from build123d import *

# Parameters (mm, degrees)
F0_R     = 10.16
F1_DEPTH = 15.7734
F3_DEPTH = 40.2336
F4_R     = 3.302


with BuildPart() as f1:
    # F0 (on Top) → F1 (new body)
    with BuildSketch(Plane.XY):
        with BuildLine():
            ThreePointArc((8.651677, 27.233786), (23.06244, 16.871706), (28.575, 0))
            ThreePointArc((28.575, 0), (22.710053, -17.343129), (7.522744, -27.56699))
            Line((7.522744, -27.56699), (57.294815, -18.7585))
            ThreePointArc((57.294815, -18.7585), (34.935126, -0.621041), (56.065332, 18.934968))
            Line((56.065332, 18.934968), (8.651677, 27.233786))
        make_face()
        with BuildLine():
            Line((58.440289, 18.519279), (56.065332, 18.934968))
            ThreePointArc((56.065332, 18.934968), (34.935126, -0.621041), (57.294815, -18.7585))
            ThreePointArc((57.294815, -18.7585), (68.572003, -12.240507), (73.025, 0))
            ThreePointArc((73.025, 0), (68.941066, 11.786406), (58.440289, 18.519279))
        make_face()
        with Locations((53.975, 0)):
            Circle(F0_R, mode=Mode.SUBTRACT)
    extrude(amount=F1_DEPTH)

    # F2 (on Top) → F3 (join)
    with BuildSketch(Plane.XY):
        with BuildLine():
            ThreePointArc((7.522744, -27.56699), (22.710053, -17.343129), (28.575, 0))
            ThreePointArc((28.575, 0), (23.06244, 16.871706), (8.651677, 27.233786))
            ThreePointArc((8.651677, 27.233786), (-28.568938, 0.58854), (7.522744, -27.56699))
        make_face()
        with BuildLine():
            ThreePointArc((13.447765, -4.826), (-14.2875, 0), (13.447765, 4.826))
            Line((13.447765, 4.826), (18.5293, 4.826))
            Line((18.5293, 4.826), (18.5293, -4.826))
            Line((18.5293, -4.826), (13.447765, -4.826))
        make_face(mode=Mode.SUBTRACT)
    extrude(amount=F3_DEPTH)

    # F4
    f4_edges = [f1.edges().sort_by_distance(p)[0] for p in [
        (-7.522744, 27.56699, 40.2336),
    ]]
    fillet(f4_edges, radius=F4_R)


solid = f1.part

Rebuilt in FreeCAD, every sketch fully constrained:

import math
import FreeCAD as App
import Part
import Sketcher
from FreeCAD import Vector
Q = App.Units.Quantity


def edges_at(feature, points):
    """Names of the edges that pass closest to the given points."""
    edges = feature.Shape.Edges
    near = lambda p: min(range(len(edges)), key=lambda i: edges[i].distToShape(Part.Vertex(*p))[0])
    return sorted({f"Edge{near(p) + 1}" for p in points})

doc = App.newDocument("Part")
params = doc.addObject("Spreadsheet::Sheet", "Params")
for row, (alias, value) in enumerate([
    ("sketch1_diameter", "0.8 in"),
    ("sketch1_radius", "0.75 in"),
    ("sketch1_radius2", "1.125 in"),
    ("pad1_length", "0.621 in"),
    ("sketch2_radius", "1.125 in"),
    ("sketch2_radius2", "0.5625 in"),
    ("sketch2_height", "0.38 in"),
    ("pad2_length", "1.584 in"),
    ("fillet_radius", "0.13 in"),
], start=1):
    params.set(f"A{row}", alias)
    params.set(f"B{row}", "=" + value)
    params.setAlias(f"B{row}", alias)

body = doc.addObject("PartDesign::Body", "Body")

# Sketch on XY plane
sketch1 = body.newObject("Sketcher::SketchObject", "Sketch")
sketch1.AttachmentSupport = (doc.getObject("XY_Plane"), [""])
sketch1.MapMode = "FlatFace"
sketch1.addGeometry([
    Part.ArcOfCircle(Part.Circle(Vector(-0.000001, -0.000001, 0), Vector(0, 0, 1), 28.575001), math.radians(0.000002), math.radians(72.375895)),  # 0
    Part.ArcOfCircle(Part.Circle(Vector(0.000001, 0, 0), Vector(0, 0, 1), 28.574999), math.radians(-74.736228), math.radians(0.000001)),  # 1
    Part.LineSegment(Vector(7.522744, -27.56699, 0), Vector(57.294815, -18.7585, 0)),  # 2
    Part.ArcOfCircle(Part.Circle(Vector(53.975001, -0.000001, 0), Vector(0, 0, 1), 19.049999), math.radians(-79.96391), math.radians(0.000002)),  # 3
    Part.ArcOfCircle(Part.Circle(Vector(53.975, 0, 0), Vector(0, 0, 1), 19.05), math.radians(0.000001), math.radians(76.443838)),  # 4
    Part.LineSegment(Vector(58.440289, 18.519279, 0), Vector(56.065332, 18.934968, 0)),  # 5
    Part.LineSegment(Vector(56.065332, 18.934968, 0), Vector(8.651677, 27.233786, 0)),  # 6
    Part.Circle(Vector(53.975, 0, 0), Vector(0, 0, 1), 10.16),  # 7
], False)
sketch1.addConstraint([
    Sketcher.Constraint("Coincident", 0, 1, 1, 2),
    Sketcher.Constraint("Coincident", 1, 1, 2, 1),
    Sketcher.Constraint("Coincident", 2, 2, 3, 1),
    Sketcher.Constraint("Coincident", 3, 2, 4, 1),
    Sketcher.Constraint("Coincident", 4, 2, 5, 1),
    Sketcher.Constraint("Coincident", 5, 2, 6, 1),
    Sketcher.Constraint("Coincident", 6, 2, 0, 2),
    Sketcher.Constraint("Coincident", 0, 3, -1, 1),
    Sketcher.Constraint("Coincident", 1, 3, -1, 1),
    Sketcher.Constraint("Coincident", 4, 3, 3, 3),
    Sketcher.Constraint("Coincident", 7, 3, 3, 3),
    Sketcher.Constraint("PointOnObject", 3, 3, -1),
    Sketcher.Constraint("PointOnObject", 0, 1, -1),
    Sketcher.Constraint("PointOnObject", 3, 2, -1),
    Sketcher.Constraint("Diameter", 7, Q("0.8 in")),
    Sketcher.Constraint("Radius", 3, Q("0.75 in")),
    Sketcher.Constraint("Radius", 0, Q("1.125 in")),
    Sketcher.Constraint("DistanceX", 0, 1, 4, 3, Q("1 in")),
    Sketcher.Constraint("DistanceY", 2, 2, -1, 1, 18.7585),
    Sketcher.Constraint("Distance", 2, 50.54551),
    Sketcher.Constraint("Distance", 5, 2.411062),
    Sketcher.Constraint("DistanceX", -1, 1, 4, 2, 58.440289),
    Sketcher.Constraint("DistanceX", -1, 1, 5, 2, 56.065332),
    Sketcher.Constraint("DistanceX", 0, 3, 6, 2, 8.651678),
])
sketch1.setExpression("Constraints[14]", "Params.sketch1_diameter")
sketch1.setExpression("Constraints[15]", "Params.sketch1_radius")
sketch1.setExpression("Constraints[16]", "Params.sketch1_radius2")
pad1 = body.newObject("PartDesign::Pad", "Pad")
pad1.Profile = sketch1
pad1.setExpression("Length", "Params.pad1_length")

# Sketch on XY plane
sketch2 = body.newObject("Sketcher::SketchObject", "Sketch001")
sketch2.AttachmentSupport = (doc.getObject("XY_Plane"), [""])
sketch2.MapMode = "FlatFace"
sketch2.addGeometry([
    Part.ArcOfCircle(Part.Circle(Vector(0.000001, 0, 0), Vector(0, 0, 1), 28.574999), math.radians(-74.736228), math.radians(0.000001)),  # 0
    Part.ArcOfCircle(Part.Circle(Vector(-0.000001, -0.000001, 0), Vector(0, 0, 1), 28.575001), math.radians(0.000002), math.radians(72.375895)),  # 1
    Part.ArcOfCircle(Part.Circle(Vector(0, 0, 0), Vector(0, 0, 1), 28.575), math.radians(72.375897), math.radians(285.263773)),  # 2
    Part.LineSegment(Vector(18.5293, -4.826, 0), Vector(13.447765, -4.826, 0)),  # 3
    Part.ArcOfCircle(Part.Circle(Vector(0, 0, 0), Vector(0, 0, 1), 14.2875), math.radians(19.741542), math.radians(340.258458)),  # 4
    Part.LineSegment(Vector(13.447765, 4.826, 0), Vector(18.5293, 4.826, 0)),  # 5
    Part.LineSegment(Vector(18.5293, 4.826, 0), Vector(18.5293, -4.826, 0)),  # 6
], False)
sketch2.addConstraint([
    Sketcher.Constraint("Tangent", 0, 2, 1, 1),
    Sketcher.Constraint("Tangent", 1, 2, 2, 1),
    Sketcher.Constraint("Tangent", 2, 2, 0, 1),
    Sketcher.Constraint("Coincident", 3, 2, 4, 2),
    Sketcher.Constraint("Coincident", 4, 1, 5, 1),
    Sketcher.Constraint("Coincident", 5, 2, 6, 1),
    Sketcher.Constraint("Coincident", 6, 2, 3, 1),
    Sketcher.Constraint("Horizontal", 3),
    Sketcher.Constraint("Horizontal", 5),
    Sketcher.Constraint("Vertical", 6),
    Sketcher.Constraint("Coincident", 0, 3, -1, 1),
    Sketcher.Constraint("Coincident", 4, 3, -1, 1),
    Sketcher.Constraint("PointOnObject", 0, 2, -1),
    Sketcher.Constraint("Vertical", 3, 2, 4, 1),
    Sketcher.Constraint("Radius", 0, Q("1.125 in")),
    Sketcher.Constraint("Radius", 4, Q("0.5625 in")),
    Sketcher.Constraint("DistanceY", 6, 2, 6, 1, Q("0.38 in")),
    Sketcher.Constraint("DistanceX", -1, 1, 5, 2, Q("0.7295 in")),
    Sketcher.Constraint("DistanceY", 2, 2, -1, 1, 27.56699),
    Sketcher.Constraint("DistanceX", 1, 3, 1, 2, 8.651678),
])
sketch2.setExpression("Constraints[14]", "Params.sketch2_radius")
sketch2.setExpression("Constraints[15]", "Params.sketch2_radius2")
sketch2.setExpression("Constraints[16]", "Params.sketch2_height")
pad2 = body.newObject("PartDesign::Pad", "Pad001")
pad2.Profile = sketch2
pad2.setExpression("Length", "Params.pad2_length")
doc.recompute()

fillet = body.newObject("PartDesign::Fillet", "Fillet")
fillet.Base = (pad2, edges_at(pad2, [(-28.569, 0.589, 40.234)]))
fillet.setExpression("Radius", "Params.fillet_radius")

doc.recompute()
